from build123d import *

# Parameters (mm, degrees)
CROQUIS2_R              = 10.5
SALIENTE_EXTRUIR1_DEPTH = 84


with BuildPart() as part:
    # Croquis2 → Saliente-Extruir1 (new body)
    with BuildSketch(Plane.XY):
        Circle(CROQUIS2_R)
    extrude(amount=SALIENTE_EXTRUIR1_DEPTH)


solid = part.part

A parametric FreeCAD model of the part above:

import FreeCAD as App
import Part
import Sketcher
Q = App.Units.Quantity

doc = App.newDocument("Part")
body = doc.addObject("PartDesign::Body", "Body")

sketch1 = doc.addObject("Sketcher::SketchObject", "Sketch")
body.addObject(sketch1)
sketch1.AttachmentSupport = (doc.XY_Plane, [""])
sketch1.MapMode = "FlatFace"
sketch1.addGeometry(Part.Circle(App.Vector(0, 0, 0), App.Vector(0, 0, 1), 10), False)
sketch1.addConstraint([
    Sketcher.Constraint("Coincident", 0, 3, -1, 1),
    Sketcher.Constraint("Diameter", 0, Q("21 mm")),
])
pad1 = doc.addObject("PartDesign::Pad", "Pad")
body.addObject(pad1)
pad1.Profile = sketch1
pad1.Length = 84

doc.recompute()
